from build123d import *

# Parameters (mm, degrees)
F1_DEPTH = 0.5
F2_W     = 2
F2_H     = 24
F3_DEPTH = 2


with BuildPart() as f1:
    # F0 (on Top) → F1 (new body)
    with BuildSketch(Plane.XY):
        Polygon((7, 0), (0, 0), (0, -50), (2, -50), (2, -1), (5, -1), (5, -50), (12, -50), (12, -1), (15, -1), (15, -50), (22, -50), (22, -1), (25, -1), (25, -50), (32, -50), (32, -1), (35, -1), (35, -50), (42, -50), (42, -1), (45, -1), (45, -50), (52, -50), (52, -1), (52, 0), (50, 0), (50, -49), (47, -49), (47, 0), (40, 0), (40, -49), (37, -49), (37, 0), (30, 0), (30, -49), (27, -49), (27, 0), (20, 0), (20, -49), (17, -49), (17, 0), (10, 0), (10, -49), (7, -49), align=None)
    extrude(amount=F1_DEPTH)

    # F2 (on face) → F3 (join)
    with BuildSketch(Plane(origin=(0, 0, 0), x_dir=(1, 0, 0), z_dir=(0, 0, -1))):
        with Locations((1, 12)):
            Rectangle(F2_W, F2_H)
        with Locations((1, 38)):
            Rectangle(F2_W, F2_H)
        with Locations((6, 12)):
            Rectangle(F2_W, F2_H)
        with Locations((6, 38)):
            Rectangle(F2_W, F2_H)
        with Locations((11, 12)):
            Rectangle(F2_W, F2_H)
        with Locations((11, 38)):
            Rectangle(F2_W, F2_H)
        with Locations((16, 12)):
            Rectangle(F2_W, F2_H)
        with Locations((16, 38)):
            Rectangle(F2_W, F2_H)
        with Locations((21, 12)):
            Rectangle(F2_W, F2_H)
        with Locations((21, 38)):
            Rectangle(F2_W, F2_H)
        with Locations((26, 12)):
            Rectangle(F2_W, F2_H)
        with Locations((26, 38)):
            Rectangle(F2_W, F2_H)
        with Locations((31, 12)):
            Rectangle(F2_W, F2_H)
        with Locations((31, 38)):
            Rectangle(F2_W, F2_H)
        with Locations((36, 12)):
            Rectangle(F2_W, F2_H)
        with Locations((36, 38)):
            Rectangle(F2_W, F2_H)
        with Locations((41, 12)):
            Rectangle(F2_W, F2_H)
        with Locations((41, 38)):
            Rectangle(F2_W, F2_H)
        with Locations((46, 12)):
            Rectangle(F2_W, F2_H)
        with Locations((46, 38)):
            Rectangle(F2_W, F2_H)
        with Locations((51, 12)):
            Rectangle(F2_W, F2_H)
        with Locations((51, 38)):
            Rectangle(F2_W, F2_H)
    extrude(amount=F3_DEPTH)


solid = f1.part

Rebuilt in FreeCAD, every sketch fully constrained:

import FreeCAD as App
import Part
import Sketcher
from FreeCAD import Vector


def add_polygon(sketch, points):
    """Adds a closed chain of lines whose ends are joined by coincident constraints."""
    first, n = sketch.GeometryCount, len(points)
    for a, b in zip(points, points[1:] + points[:1]):
        sketch.addGeometry(Part.LineSegment(App.Vector(*a, 0), App.Vector(*b, 0)), False)
    for i in range(n):
        sketch.addConstraint(Sketcher.Constraint("Coincident", first + i, 2, first + (i + 1) % n, 1))

doc = App.newDocument("Part")
body = doc.addObject("PartDesign::Body", "Body")

sketch1 = body.newObject("Sketcher::SketchObject", "Sketch")
sketch1.AttachmentSupport = (doc.getObject("XY_Plane"), [""])
sketch1.MapMode = "FlatFace"
add_polygon(sketch1, [(7, 0), (0, 0), (0, -50), (2, -50), (2, -1), (5, -1), (5, -50), (12, -50), (12, -1), (15, -1), (15, -50), (22, -50), (22, -1), (25, -1), (25, -50), (32, -50), (32, -1), (35, -1), (35, -50), (42, -50), (42, -1), (45, -1), (45, -50), (52, -50), (52, 0), (50, 0), (50, -49), (47, -49), (47, 0), (40, 0), (40, -49), (37, -49), (37, 0), (30, 0), (30, -49), (27, -49), (27, 0), (20, 0), (20, -49), (17, -49), (17, 0), (10, 0), (10, -49), (7, -49)])
sketch1.addConstraint(Sketcher.Constraint("Horizontal", 0))
sketch1.addConstraint(Sketcher.Constraint("Vertical", 1))
sketch1.addConstraint(Sketcher.Constraint("Horizontal", 2))
sketch1.addConstraint(Sketcher.Constraint("Vertical", 3))
sketch1.addConstraint(Sketcher.Constraint("Horizontal", 4))
sketch1.addConstraint(Sketcher.Constraint("Vertical", 5))
sketch1.addConstraint(Sketcher.Constraint("Horizontal", 6))
sketch1.addConstraint(Sketcher.Constraint("Vertical", 7))
sketch1.addConstraint(Sketcher.Constraint("Horizontal", 8))
sketch1.addConstraint(Sketcher.Constraint("Vertical", 9))
sketch1.addConstraint(Sketcher.Constraint("Horizontal", 10))
sketch1.addConstraint(Sketcher.Constraint("Vertical", 11))
sketch1.addConstraint(Sketcher.Constraint("Horizontal", 12))
sketch1.addConstraint(Sketcher.Constraint("Vertical", 13))
sketch1.addConstraint(Sketcher.Constraint("Horizontal", 14))
sketch1.addConstraint(Sketcher.Constraint("Vertical", 15))
sketch1.addConstraint(Sketcher.Constraint("Horizontal", 16))
sketch1.addConstraint(Sketcher.Constraint("Vertical", 17))
sketch1.addConstraint(Sketcher.Constraint("Horizontal", 18))
sketch1.addConstraint(Sketcher.Constraint("Vertical", 19))
sketch1.addConstraint(Sketcher.Constraint("Horizontal", 20))
sketch1.addConstraint(Sketcher.Constraint("Vertical", 21))
sketch1.addConstraint(Sketcher.Constraint("Horizontal", 22))
sketch1.addConstraint(Sketcher.Constraint("Vertical", 23))
sketch1.addConstraint(Sketcher.Constraint("Horizontal", 24))
sketch1.addConstraint(Sketcher.Constraint("Vertical", 25))
sketch1.addConstraint(Sketcher.Constraint("Horizontal", 26))
sketch1.addConstraint(Sketcher.Constraint("Vertical", 27))
sketch1.addConstraint(Sketcher.Constraint("Horizontal", 28))
sketch1.addConstraint(Sketcher.Constraint("Vertical", 29))
sketch1.addConstraint(Sketcher.Constraint("Horizontal", 30))
sketch1.addConstraint(Sketcher.Constraint("Vertical", 31))
sketch1.addConstraint(Sketcher.Constraint("Horizontal", 32))
sketch1.addConstraint(Sketcher.Constraint("Vertical", 33))
sketch1.addConstraint(Sketcher.Constraint("Horizontal", 34))
sketch1.addConstraint(Sketcher.Constraint("Vertical", 35))
sketch1.addConstraint(Sketcher.Constraint("Horizontal", 36))
sketch1.addConstraint(Sketcher.Constraint("Vertical", 37))
sketch1.addConstraint(Sketcher.Constraint("Horizontal", 38))
sketch1.addConstraint(Sketcher.Constraint("Vertical", 39))
sketch1.addConstraint(Sketcher.Constraint("Horizontal", 40))
sketch1.addConstraint(Sketcher.Constraint("Vertical", 41))
sketch1.addConstraint(Sketcher.Constraint("Horizontal", 42))
sketch1.addConstraint(Sketcher.Constraint("Vertical", 43))
sketch1.addConstraint(Sketcher.Constraint("Coincident", 0, 2, -1, 1))
sketch1.addConstraint(Sketcher.Constraint("PointOnObject", 23, 2, -1))
sketch1.addConstraint(Sketcher.Constraint("PointOnObject", 27, 2, -1))
sketch1.addConstraint(Sketcher.Constraint("PointOnObject", 31, 2, -1))
sketch1.addConstraint(Sketcher.Constraint("PointOnObject", 35, 2, -1))
sketch1.addConstraint(Sketcher.Constraint("PointOnObject", 39, 2, -1))
sketch1.addConstraint(Sketcher.Constraint("Horizontal", 2, 2, 5, 2))
sketch1.addConstraint(Sketcher.Constraint("Horizontal", 4, 2, 7, 2))
sketch1.addConstraint(Sketcher.Constraint("Horizontal", 6, 2, 9, 2))
sketch1.addConstraint(Sketcher.Constraint("Horizontal", 8, 2, 11, 2))
sketch1.addConstraint(Sketcher.Constraint("Horizontal", 10, 2, 13, 2))
sketch1.addConstraint(Sketcher.Constraint("Horizontal", 12, 2, 15, 2))
sketch1.addConstraint(Sketcher.Constraint("Horizontal", 14, 2, 17, 2))
sketch1.addConstraint(Sketcher.Constraint("Horizontal", 16, 2, 19, 2))
sketch1.addConstraint(Sketcher.Constraint("Horizontal", 18, 2, 21, 2))
sketch1.addConstraint(Sketcher.Constraint("Horizontal", 26, 2, 29, 2))
sketch1.addConstraint(Sketcher.Constraint("Horizontal", 30, 2, 33, 2))
sketch1.addConstraint(Sketcher.Constraint("Horizontal", 34, 2, 37, 2))
sketch1.addConstraint(Sketcher.Constraint("Horizontal", 38, 2, 41, 2))
sketch1.addConstraint(Sketcher.Constraint("Equal", 0, 6))
sketch1.addConstraint(Sketcher.Constraint("Equal", 4, 8))
sketch1.addConstraint(Sketcher.Constraint("Equal", 6, 10))
sketch1.addConstraint(Sketcher.Constraint("Equal", 8, 12))
sketch1.addConstraint(Sketcher.Constraint("Equal", 10, 14))
sketch1.addConstraint(Sketcher.Constraint("Equal", 12, 16))
sketch1.addConstraint(Sketcher.Constraint("Equal", 14, 18))
sketch1.addConstraint(Sketcher.Constraint("Equal", 16, 20))
sketch1.addConstraint(Sketcher.Constraint("Equal", 18, 22))
sketch1.addConstraint(Sketcher.Constraint("Equal", 2, 24))
sketch1.addConstraint(Sketcher.Constraint("Equal", 20, 26))
sketch1.addConstraint(Sketcher.Constraint("Equal", 22, 28))
sketch1.addConstraint(Sketcher.Constraint("Equal", 26, 30))
sketch1.addConstraint(Sketcher.Constraint("Equal", 28, 32))
sketch1.addConstraint(Sketcher.Constraint("Equal", 30, 34))
sketch1.addConstraint(Sketcher.Constraint("Equal", 32, 36))
sketch1.addConstraint(Sketcher.Constraint("Equal", 34, 38))
sketch1.addConstraint(Sketcher.Constraint("Equal", 36, 40))
sketch1.addConstraint(Sketcher.Constraint("Equal", 21, 25))
sketch1.addConstraint(Sketcher.Constraint("DistanceX", 0, 2, 0, 1, 7.0))
sketch1.addConstraint(Sketcher.Constraint("DistanceX", 2, 1, 2, 2, 2.0))
sketch1.addConstraint(Sketcher.Constraint("DistanceX", 4, 1, 4, 2, 3.0))
sketch1.addConstraint(Sketcher.Constraint("DistanceY", 1, 2, 1, 1, 50.0))
sketch1.addConstraint(Sketcher.Constraint("DistanceY", 3, 1, 3, 2, 49.0))
pad1 = body.newObject("PartDesign::Pad", "Pad")
pad1.Profile = sketch1
pad1.Length = 0.5

sketch2 = body.newObject("Sketcher::SketchObject", "Sketch001")
sketch2.AttachmentSupport = (doc.getObject("XY_Plane"), [""])
sketch2.MapMode = "FlatFace"
add_polygon(sketch2, [(0, -24), (0, 0), (2, 0), (2, -24)])
add_polygon(sketch2, [(0, -50), (0, -26), (2, -26), (2, -50)])
add_polygon(sketch2, [(5, -24), (5, 0), (7, 0), (7, -24)])
add_polygon(sketch2, [(5, -50), (5, -26), (7, -26), (7, -50)])
add_polygon(sketch2, [(10, -24), (10, 0), (12, 0), (12, -24)])
add_polygon(sketch2, [(10, -50), (10, -26), (12, -26), (12, -50)])
add_polygon(sketch2, [(15, -24), (15, 0), (17, 0), (17, -24)])
add_polygon(sketch2, [(15, -50), (15, -26), (17, -26), (17, -50)])
add_polygon(sketch2, [(20, -24), (20, 0), (22, 0), (22, -24)])
add_polygon(sketch2, [(20, -50), (20, -26), (22, -26), (22, -50)])
add_polygon(sketch2, [(25, -24), (25, 0), (27, 0), (27, -24)])
add_polygon(sketch2, [(25, -50), (25, -26), (27, -26), (27, -50)])
add_polygon(sketch2, [(30, -24), (30, 0), (32, 0), (32, -24)])
add_polygon(sketch2, [(30, -50), (30, -26), (32, -26), (32, -50)])
add_polygon(sketch2, [(35, -24), (35, 0), (37, 0), (37, -24)])
add_polygon(sketch2, [(35, -50), (35, -26), (37, -26), (37, -50)])
add_polygon(sketch2, [(40, -24), (40, 0), (42, 0), (42, -24)])
add_polygon(sketch2, [(40, -50), (40, -26), (42, -26), (42, -50)])
add_polygon(sketch2, [(45, -24), (45, 0), (47, 0), (47, -24)])
add_polygon(sketch2, [(45, -50), (45, -26), (47, -26), (47, -50)])
add_polygon(sketch2, [(50, -24), (50, 0), (52, 0), (52, -24)])
add_polygon(sketch2, [(50, -50), (50, -26), (52, -26), (52, -50)])
sketch2.addConstraint(Sketcher.Constraint("Vertical", 0))
sketch2.addConstraint(Sketcher.Constraint("Horizontal", 1))
sketch2.addConstraint(Sketcher.Constraint("Vertical", 2))
sketch2.addConstraint(Sketcher.Constraint("Horizontal", 3))
sketch2.addConstraint(Sketcher.Constraint("Vertical", 4))
sketch2.addConstraint(Sketcher.Constraint("Horizontal", 5))
sketch2.addConstraint(Sketcher.Constraint("Vertical", 6))
sketch2.addConstraint(Sketcher.Constraint("Horizontal", 7))
sketch2.addConstraint(Sketcher.Constraint("Vertical", 8))
sketch2.addConstraint(Sketcher.Constraint("Horizontal", 9))
sketch2.addConstraint(Sketcher.Constraint("Vertical", 10))
sketch2.addConstraint(Sketcher.Constraint("Horizontal", 11))
sketch2.addConstraint(Sketcher.Constraint("Vertical", 12))
sketch2.addConstraint(Sketcher.Constraint("Horizontal", 13))
sketch2.addConstraint(Sketcher.Constraint("Vertical", 14))
sketch2.addConstraint(Sketcher.Constraint("Horizontal", 15))
sketch2.addConstraint(Sketcher.Constraint("Vertical", 16))
sketch2.addConstraint(Sketcher.Constraint("Horizontal", 17))
sketch2.addConstraint(Sketcher.Constraint("Vertical", 18))
sketch2.addConstraint(Sketcher.Constraint("Horizontal", 19))
sketch2.addConstraint(Sketcher.Constraint("Vertical", 20))
sketch2.addConstraint(Sketcher.Constraint("Horizontal", 21))
sketch2.addConstraint(Sketcher.Constraint("Vertical", 22))
sketch2.addConstraint(Sketcher.Constraint("Horizontal", 23))
sketch2.addConstraint(Sketcher.Constraint("Vertical", 24))
sketch2.addConstraint(Sketcher.Constraint("Horizontal", 25))
sketch2.addConstraint(Sketcher.Constraint("Vertical", 26))
sketch2.addConstraint(Sketcher.Constraint("Horizontal", 27))
sketch2.addConstraint(Sketcher.Constraint("Vertical", 28))
sketch2.addConstraint(Sketcher.Constraint("Horizontal", 29))
sketch2.addConstraint(Sketcher.Constraint("Vertical", 30))
sketch2.addConstraint(Sketcher.Constraint("Horizontal", 31))
sketch2.addConstraint(Sketcher.Constraint("Vertical", 32))
sketch2.addConstraint(Sketcher.Constraint("Horizontal", 33))
sketch2.addConstraint(Sketcher.Constraint("Vertical", 34))
sketch2.addConstraint(Sketcher.Constraint("Horizontal", 35))
sketch2.addConstraint(Sketcher.Constraint("Vertical", 36))
sketch2.addConstraint(Sketcher.Constraint("Horizontal", 37))
sketch2.addConstraint(Sketcher.Constraint("Vertical", 38))
sketch2.addConstraint(Sketcher.Constraint("Horizontal", 39))
sketch2.addConstraint(Sketcher.Constraint("Vertical", 40))
sketch2.addConstraint(Sketcher.Constraint("Horizontal", 41))
sketch2.addConstraint(Sketcher.Constraint("Vertical", 42))
sketch2.addConstraint(Sketcher.Constraint("Horizontal", 43))
sketch2.addConstraint(Sketcher.Constraint("Vertical", 44))
sketch2.addConstraint(Sketcher.Constraint("Horizontal", 45))
sketch2.addConstraint(Sketcher.Constraint("Vertical", 46))
sketch2.addConstraint(Sketcher.Constraint("Horizontal", 47))
sketch2.addConstraint(Sketcher.Constraint("Vertical", 48))
sketch2.addConstraint(Sketcher.Constraint("Horizontal", 49))
sketch2.addConstraint(Sketcher.Constraint("Vertical", 50))
sketch2.addConstraint(Sketcher.Constraint("Horizontal", 51))
sketch2.addConstraint(Sketcher.Constraint("Vertical", 52))
sketch2.addConstraint(Sketcher.Constraint("Horizontal", 53))
sketch2.addConstraint(Sketcher.Constraint("Vertical", 54))
sketch2.addConstraint(Sketcher.Constraint("Horizontal", 55))
sketch2.addConstraint(Sketcher.Constraint("Vertical", 56))
sketch2.addConstraint(Sketcher.Constraint("Horizontal", 57))
sketch2.addConstraint(Sketcher.Constraint("Vertical", 58))
sketch2.addConstraint(Sketcher.Constraint("Horizontal", 59))
sketch2.addConstraint(Sketcher.Constraint("Vertical", 60))
sketch2.addConstraint(Sketcher.Constraint("Horizontal", 61))
sketch2.addConstraint(Sketcher.Constraint("Vertical", 62))
sketch2.addConstraint(Sketcher.Constraint("Horizontal", 63))
sketch2.addConstraint(Sketcher.Constraint("Vertical", 64))
sketch2.addConstraint(Sketcher.Constraint("Horizontal", 65))
sketch2.addConstraint(Sketcher.Constraint("Vertical", 66))
sketch2.addConstraint(Sketcher.Constraint("Horizontal", 67))
sketch2.addConstraint(Sketcher.Constraint("Vertical", 68))
sketch2.addConstraint(Sketcher.Constraint("Horizontal", 69))
sketch2.addConstraint(Sketcher.Constraint("Vertical", 70))
sketch2.addConstraint(Sketcher.Constraint("Horizontal", 71))
sketch2.addConstraint(Sketcher.Constraint("Vertical", 72))
sketch2.addConstraint(Sketcher.Constraint("Horizontal", 73))
sketch2.addConstraint(Sketcher.Constraint("Vertical", 74))
sketch2.addConstraint(Sketcher.Constraint("Horizontal", 75))
sketch2.addConstraint(Sketcher.Constraint("Vertical", 76))
sketch2.addConstraint(Sketcher.Constraint("Horizontal", 77))
sketch2.addConstraint(Sketcher.Constraint("Vertical", 78))
sketch2.addConstraint(Sketcher.Constraint("Horizontal", 79))
sketch2.addConstraint(Sketcher.Constraint("Vertical", 80))
sketch2.addConstraint(Sketcher.Constraint("Horizontal", 81))
sketch2.addConstraint(Sketcher.Constraint("Vertical", 82))
sketch2.addConstraint(Sketcher.Constraint("Horizontal", 83))
sketch2.addConstraint(Sketcher.Constraint("Vertical", 84))
sketch2.addConstraint(Sketcher.Constraint("Horizontal", 85))
sketch2.addConstraint(Sketcher.Constraint("Vertical", 86))
sketch2.addConstraint(Sketcher.Constraint("Horizontal", 87))
sketch2.addConstraint(Sketcher.Constraint("Coincident", 0, 2, -1, 1))
sketch2.addConstraint(Sketcher.Constraint("PointOnObject", 4, 2, -2))
sketch2.addConstraint(Sketcher.Constraint("PointOnObject", 8, 2, -1))
sketch2.addConstraint(Sketcher.Constraint("PointOnObject", 16, 2, -1))
sketch2.addConstraint(Sketcher.Constraint("PointOnObject", 24, 2, -1))
sketch2.addConstraint(Sketcher.Constraint("PointOnObject", 32, 2, -1))
sketch2.addConstraint(Sketcher.Constraint("PointOnObject", 40, 2, -1))
sketch2.addConstraint(Sketcher.Constraint("PointOnObject", 48, 2, -1))
sketch2.addConstraint(Sketcher.Constraint("PointOnObject", 56, 2, -1))
sketch2.addConstraint(Sketcher.Constraint("PointOnObject", 64, 2, -1))
sketch2.addConstraint(Sketcher.Constraint("PointOnObject", 72, 2, -1))
sketch2.addConstraint(Sketcher.Constraint("PointOnObject", 80, 2, -1))
sketch2.addConstraint(Sketcher.Constraint("Horizontal", 3, 2, 10, 2))
sketch2.addConstraint(Sketcher.Constraint("Horizontal", 5, 2, 12, 2))
sketch2.addConstraint(Sketcher.Constraint("Horizontal", 7, 2, 14, 2))
sketch2.addConstraint(Sketcher.Constraint("Horizontal", 11, 2, 18, 2))
sketch2.addConstraint(Sketcher.Constraint("Horizontal", 13, 2, 20, 2))
sketch2.addConstraint(Sketcher.Constraint("Horizontal", 15, 2, 22, 2))
sketch2.addConstraint(Sketcher.Constraint("Horizontal", 19, 2, 26, 2))
sketch2.addConstraint(Sketcher.Constraint("Horizontal", 21, 2, 28, 2))
sketch2.addConstraint(Sketcher.Constraint("Horizontal", 23, 2, 30, 2))
sketch2.addConstraint(Sketcher.Constraint("Horizontal", 27, 2, 34, 2))
sketch2.addConstraint(Sketcher.Constraint("Horizontal", 29, 2, 36, 2))
sketch2.addConstraint(Sketcher.Constraint("Horizontal", 31, 2, 38, 2))
sketch2.addConstraint(Sketcher.Constraint("Horizontal", 35, 2, 42, 2))
sketch2.addConstraint(Sketcher.Constraint("Horizontal", 37, 2, 44, 2))
sketch2.addConstraint(Sketcher.Constraint("Horizontal", 39, 2, 46, 2))
sketch2.addConstraint(Sketcher.Constraint("Horizontal", 43, 2, 50, 2))
sketch2.addConstraint(Sketcher.Constraint("Horizontal", 45, 2, 52, 2))
sketch2.addConstraint(Sketcher.Constraint("Horizontal", 47, 2, 54, 2))
sketch2.addConstraint(Sketcher.Constraint("Horizontal", 51, 2, 58, 2))
sketch2.addConstraint(Sketcher.Constraint("Horizontal", 53, 2, 60, 2))
sketch2.addConstraint(Sketcher.Constraint("Horizontal", 55, 2, 62, 2))
sketch2.addConstraint(Sketcher.Constraint("Horizontal", 59, 2, 66, 2))
sketch2.addConstraint(Sketcher.Constraint("Horizontal", 61, 2, 68, 2))
sketch2.addConstraint(Sketcher.Constraint("Horizontal", 63, 2, 70, 2))
sketch2.addConstraint(Sketcher.Constraint("Horizontal", 67, 2, 74, 2))
sketch2.addConstraint(Sketcher.Constraint("Horizontal", 69, 2, 76, 2))
sketch2.addConstraint(Sketcher.Constraint("Horizontal", 71, 2, 78, 2))
sketch2.addConstraint(Sketcher.Constraint("Horizontal", 75, 2, 82, 2))
sketch2.addConstraint(Sketcher.Constraint("Horizontal", 77, 2, 84, 2))
sketch2.addConstraint(Sketcher.Constraint("Horizontal", 79, 2, 86, 2))
sketch2.addConstraint(Sketcher.Constraint("Vertical", 2, 2, 5, 2))
sketch2.addConstraint(Sketcher.Constraint("Vertical", 11, 2, 12, 2))
sketch2.addConstraint(Sketcher.Constraint("Vertical", 10, 2, 13, 2))
sketch2.addConstraint(Sketcher.Constraint("Vertical", 19, 2, 20, 2))
sketch2.addConstraint(Sketcher.Constraint("Vertical", 18, 2, 21, 2))
sketch2.addConstraint(Sketcher.Constraint("Vertical", 27, 2, 28, 2))
sketch2.addConstraint(Sketcher.Constraint("Vertical", 26, 2, 29, 2))
sketch2.addConstraint(Sketcher.Constraint("Vertical", 35, 2, 36, 2))
sketch2.addConstraint(Sketcher.Constraint("Vertical", 34, 2, 37, 2))
sketch2.addConstraint(Sketcher.Constraint("Vertical", 43, 2, 44, 2))
sketch2.addConstraint(Sketcher.Constraint("Vertical", 42, 2, 45, 2))
sketch2.addConstraint(Sketcher.Constraint("Vertical", 51, 2, 52, 2))
sketch2.addConstraint(Sketcher.Constraint("Vertical", 50, 2, 53, 2))
sketch2.addConstraint(Sketcher.Constraint("Vertical", 59, 2, 60, 2))
sketch2.addConstraint(Sketcher.Constraint("Vertical", 58, 2, 61, 2))
sketch2.addConstraint(Sketcher.Constraint("Vertical", 67, 2, 68, 2))
sketch2.addConstraint(Sketcher.Constraint("Vertical", 66, 2, 69, 2))
sketch2.addConstraint(Sketcher.Constraint("Vertical", 75, 2, 76, 2))
sketch2.addConstraint(Sketcher.Constraint("Vertical", 74, 2, 77, 2))
sketch2.addConstraint(Sketcher.Constraint("Vertical", 83, 2, 84, 2))
sketch2.addConstraint(Sketcher.Constraint("Vertical", 82, 2, 85, 2))
sketch2.addConstraint(Sketcher.Constraint("Equal", 7, 9))
sketch2.addConstraint(Sketcher.Constraint("Equal", 15, 17))
sketch2.addConstraint(Sketcher.Constraint("Equal", 23, 25))
sketch2.addConstraint(Sketcher.Constraint("Equal", 31, 33))
sketch2.addConstraint(Sketcher.Constraint("Equal", 39, 41))
sketch2.addConstraint(Sketcher.Constraint("Equal", 47, 49))
sketch2.addConstraint(Sketcher.Constraint("Equal", 55, 57))
sketch2.addConstraint(Sketcher.Constraint("Equal", 63, 65))
sketch2.addConstraint(Sketcher.Constraint("Equal", 71, 73))
sketch2.addConstraint(Sketcher.Constraint("Equal", 79, 81))
sketch2.addConstraint(Sketcher.Constraint("Equal", 2, 4))
sketch2.addConstraint(Sketcher.Constraint("DistanceX", 1, 1, 1, 2, 2.0))
sketch2.addConstraint(Sketcher.Constraint("DistanceY", 0, 1, 0, 2, 24.0))
sketch2.addConstraint(Sketcher.Constraint("DistanceY", 4, 2, -1, 1, 26.0))
sketch2.addConstraint(Sketcher.Constraint("DistanceX", -1, 1, 8, 2, 5.0))
sketch2.addConstraint(Sketcher.Constraint("DistanceX", -1, 1, 16, 2, 10.0))
sketch2.addConstraint(Sketcher.Constraint("DistanceX", -1, 1, 24, 2, 15.0))
sketch2.addConstraint(Sketcher.Constraint("DistanceX", -1, 1, 32, 2, 20.0))
sketch2.addConstraint(Sketcher.Constraint("DistanceX", -1, 1, 40, 2, 25.0))
sketch2.addConstraint(Sketcher.Constraint("DistanceX", -1, 1, 48, 2, 30.0))
sketch2.addConstraint(Sketcher.Constraint("DistanceX", -1, 1, 56, 2, 35.0))
sketch2.addConstraint(Sketcher.Constraint("DistanceX", -1, 1, 64, 2, 40.0))
sketch2.addConstraint(Sketcher.Constraint("DistanceX", -1, 1, 72, 2, 45.0))
sketch2.addConstraint(Sketcher.Constraint("DistanceX", -1, 1, 80, 2, 50.0))
pad2 = body.newObject("PartDesign::Pad", "Pad001")
pad2.Profile = sketch2
pad2.Length = 2
pad2.Reversed = True

doc.recompute()
